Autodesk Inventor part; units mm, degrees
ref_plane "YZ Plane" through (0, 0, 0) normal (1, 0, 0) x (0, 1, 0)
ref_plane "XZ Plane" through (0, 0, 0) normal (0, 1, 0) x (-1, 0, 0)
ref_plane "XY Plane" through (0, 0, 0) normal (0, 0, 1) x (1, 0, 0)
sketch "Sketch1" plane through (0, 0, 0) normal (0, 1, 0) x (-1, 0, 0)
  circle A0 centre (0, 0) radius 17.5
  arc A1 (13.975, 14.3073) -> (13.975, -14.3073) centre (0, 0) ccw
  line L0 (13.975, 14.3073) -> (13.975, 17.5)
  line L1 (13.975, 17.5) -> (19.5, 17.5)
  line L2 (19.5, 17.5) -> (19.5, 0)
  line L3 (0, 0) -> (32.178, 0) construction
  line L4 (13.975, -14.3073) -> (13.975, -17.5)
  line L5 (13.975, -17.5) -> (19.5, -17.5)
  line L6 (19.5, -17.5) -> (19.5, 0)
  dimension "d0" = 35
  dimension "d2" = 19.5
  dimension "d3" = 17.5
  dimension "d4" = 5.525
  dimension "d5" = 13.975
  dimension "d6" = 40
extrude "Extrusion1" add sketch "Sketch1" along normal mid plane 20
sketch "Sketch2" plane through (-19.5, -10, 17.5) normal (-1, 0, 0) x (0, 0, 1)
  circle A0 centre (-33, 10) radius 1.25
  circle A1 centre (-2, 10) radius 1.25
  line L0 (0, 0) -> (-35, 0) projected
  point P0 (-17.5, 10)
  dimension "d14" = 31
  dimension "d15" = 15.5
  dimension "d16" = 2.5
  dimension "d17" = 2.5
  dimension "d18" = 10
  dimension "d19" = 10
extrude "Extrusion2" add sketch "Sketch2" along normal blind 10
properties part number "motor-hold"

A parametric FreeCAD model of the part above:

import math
import FreeCAD as App
import Part
import Sketcher

V = App.Vector
Q = App.Units.Quantity

doc = App.newDocument("Part")
body = doc.addObject("PartDesign::Body", "Body")

# Sketch on XZ plane
sketch1 = body.newObject("Sketcher::SketchObject", "Sketch")
sketch1.AttachmentSupport = (doc.getObject("XZ_Plane"), [""])
sketch1.MapMode = "FlatFace"
sketch1.addGeometry([
    Part.LineSegment(V(-13.975, 17.5, 0), V(-13.975, 14.3073, 0)),  # 0
    Part.ArcOfCircle(Part.Circle(V(0, 0, 0), V(0, 0, 1), 19.999986), math.radians(-134.32684), math.radians(134.32684)),  # 1
    Part.LineSegment(V(-13.975, -14.3073, 0), V(-13.975, -17.5, 0)),  # 2
    Part.LineSegment(V(-13.975, -17.5, 0), V(-19.5, -17.5, 0)),  # 3
    Part.LineSegment(V(-19.5, -17.5, 0), V(-19.5, 17.5, 0)),  # 4
    Part.LineSegment(V(-19.5, 17.5, 0), V(-13.975, 17.5, 0)),  # 5
    Part.Circle(V(0, 0, 0), V(0, 0, 1), 17.5),  # 6
], False)
sketch1.addConstraint([
    Sketcher.Constraint("Coincident", 0, 2, 1, 2),
    Sketcher.Constraint("Coincident", 1, 1, 2, 1),
    Sketcher.Constraint("Coincident", 2, 2, 3, 1),
    Sketcher.Constraint("Coincident", 3, 2, 4, 1),
    Sketcher.Constraint("Coincident", 4, 2, 5, 1),
    Sketcher.Constraint("Coincident", 5, 2, 0, 1),
    Sketcher.Constraint("Vertical", 0),
    Sketcher.Constraint("Vertical", 2),
    Sketcher.Constraint("Horizontal", 3),
    Sketcher.Constraint("Vertical", 4),
    Sketcher.Constraint("Horizontal", 5),
    Sketcher.Constraint("Coincident", 1, 3, -1, 1),
    Sketcher.Constraint("Coincident", 6, 3, -1, 1),
    Sketcher.Constraint("Symmetric", 2, 2, 5, 2, -1),
    Sketcher.Constraint("Diameter", 6, Q("35 mm")),
    Sketcher.Constraint("Radius", 1, Q("20 mm")),
    Sketcher.Constraint("DistanceY", 4, 1, 4, 2, Q("35 mm")),
    Sketcher.Constraint("DistanceX", 3, 2, -1, 1, Q("19.5 mm")),
    Sketcher.Constraint("DistanceX", 3, 2, 3, 1, Q("5.525 mm")),
])
pad1 = body.newObject("PartDesign::Pad", "Pad")
pad1.Profile = sketch1
pad1.Length = 20
pad1.Midplane = True

# Sketch on YZ plane
sketch2 = body.newObject("Sketcher::SketchObject", "Sketch001")
sketch2.AttachmentSupport = (doc.getObject("YZ_Plane"), [""])
sketch2.MapMode = "FlatFace"
sketch2.AttachmentOffset = App.Placement(V(0, 0, -19.5), App.Rotation())
sketch2.addGeometry([
    Part.Circle(V(0, -15.5, 0), V(0, 0, 1), 1.25),
    Part.Circle(V(0, 15.5, 0), V(0, 0, 1), 1.25),
], False)
sketch2.addConstraint([
    Sketcher.Constraint("Equal", 0, 1),
    Sketcher.Constraint("Symmetric", 0, 3, 1, 3, -1, 1),
    Sketcher.Constraint("PointOnObject", 0, 3, -2),
    Sketcher.Constraint("Diameter", 0, Q("2.5 mm")),
    Sketcher.Constraint("DistanceY", 0, 3, 1, 3, Q("31 mm")),
])
pad2 = body.newObject("PartDesign::Pad", "Pad001")
pad2.Profile = sketch2
pad2.Length = 10
pad2.Reversed = True

doc.recompute()
